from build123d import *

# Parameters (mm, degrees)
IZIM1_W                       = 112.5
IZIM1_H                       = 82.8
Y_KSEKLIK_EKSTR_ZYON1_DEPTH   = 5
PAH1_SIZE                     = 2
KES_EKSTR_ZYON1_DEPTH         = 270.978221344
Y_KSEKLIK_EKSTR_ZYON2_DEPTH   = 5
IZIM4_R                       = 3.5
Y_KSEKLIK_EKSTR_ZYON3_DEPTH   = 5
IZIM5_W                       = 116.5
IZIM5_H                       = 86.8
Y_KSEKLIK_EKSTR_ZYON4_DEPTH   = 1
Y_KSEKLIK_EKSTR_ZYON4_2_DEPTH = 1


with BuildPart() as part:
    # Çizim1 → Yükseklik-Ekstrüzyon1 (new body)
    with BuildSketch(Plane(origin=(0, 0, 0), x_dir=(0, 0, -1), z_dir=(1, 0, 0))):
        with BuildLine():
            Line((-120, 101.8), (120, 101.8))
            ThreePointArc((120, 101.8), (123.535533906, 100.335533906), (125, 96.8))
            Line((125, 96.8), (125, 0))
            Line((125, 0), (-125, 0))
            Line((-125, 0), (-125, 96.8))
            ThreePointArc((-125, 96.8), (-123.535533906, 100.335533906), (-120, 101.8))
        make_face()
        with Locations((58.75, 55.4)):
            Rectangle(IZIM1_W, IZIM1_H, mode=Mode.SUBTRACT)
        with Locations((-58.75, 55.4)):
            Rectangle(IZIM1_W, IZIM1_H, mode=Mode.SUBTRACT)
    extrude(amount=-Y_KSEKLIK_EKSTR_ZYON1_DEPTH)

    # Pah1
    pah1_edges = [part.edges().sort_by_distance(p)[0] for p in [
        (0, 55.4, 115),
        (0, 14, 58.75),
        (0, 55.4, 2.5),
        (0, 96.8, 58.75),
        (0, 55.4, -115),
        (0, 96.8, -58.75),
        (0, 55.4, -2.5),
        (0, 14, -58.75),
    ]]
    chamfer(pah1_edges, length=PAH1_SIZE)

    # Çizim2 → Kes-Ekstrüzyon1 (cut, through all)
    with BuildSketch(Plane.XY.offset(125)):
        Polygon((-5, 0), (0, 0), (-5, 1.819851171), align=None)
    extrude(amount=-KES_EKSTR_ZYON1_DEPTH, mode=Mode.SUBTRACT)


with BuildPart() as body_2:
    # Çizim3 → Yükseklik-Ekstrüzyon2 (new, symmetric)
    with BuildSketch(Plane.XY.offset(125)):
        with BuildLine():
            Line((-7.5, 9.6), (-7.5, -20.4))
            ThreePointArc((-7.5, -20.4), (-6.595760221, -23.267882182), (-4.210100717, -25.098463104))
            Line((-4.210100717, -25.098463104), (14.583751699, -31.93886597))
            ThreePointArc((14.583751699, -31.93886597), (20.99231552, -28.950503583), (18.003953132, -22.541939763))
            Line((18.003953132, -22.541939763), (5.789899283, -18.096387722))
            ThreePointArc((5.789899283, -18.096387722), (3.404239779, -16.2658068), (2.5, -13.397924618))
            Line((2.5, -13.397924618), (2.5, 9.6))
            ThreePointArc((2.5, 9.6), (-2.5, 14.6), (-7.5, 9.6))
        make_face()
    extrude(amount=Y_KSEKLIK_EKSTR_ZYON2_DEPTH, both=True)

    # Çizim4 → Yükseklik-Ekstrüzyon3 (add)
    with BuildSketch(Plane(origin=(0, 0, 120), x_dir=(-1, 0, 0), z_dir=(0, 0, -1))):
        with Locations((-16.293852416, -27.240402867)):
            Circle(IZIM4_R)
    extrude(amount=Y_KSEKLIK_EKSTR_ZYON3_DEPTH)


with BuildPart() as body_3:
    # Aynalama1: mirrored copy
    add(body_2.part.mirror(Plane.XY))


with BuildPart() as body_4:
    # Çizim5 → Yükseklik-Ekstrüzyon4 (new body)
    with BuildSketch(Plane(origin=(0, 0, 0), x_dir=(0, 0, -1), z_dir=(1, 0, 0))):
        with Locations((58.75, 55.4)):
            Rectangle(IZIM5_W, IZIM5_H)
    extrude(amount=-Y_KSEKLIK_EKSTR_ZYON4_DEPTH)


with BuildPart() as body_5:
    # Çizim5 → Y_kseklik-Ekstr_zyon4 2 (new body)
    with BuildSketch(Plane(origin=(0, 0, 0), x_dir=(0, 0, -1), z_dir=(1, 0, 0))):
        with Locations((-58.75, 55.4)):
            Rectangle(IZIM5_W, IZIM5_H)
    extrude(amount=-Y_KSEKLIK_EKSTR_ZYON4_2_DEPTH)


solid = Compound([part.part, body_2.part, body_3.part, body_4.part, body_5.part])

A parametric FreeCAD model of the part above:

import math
import FreeCAD as App
import Part
import Sketcher
from FreeCAD import Vector
Q = App.Units.Quantity


def edges_at(feature, points):
    """Names of the edges that pass closest to the given points."""
    edges = feature.Shape.Edges
    near = lambda p: min(range(len(edges)), key=lambda i: edges[i].distToShape(Part.Vertex(*p))[0])
    return sorted({f"Edge{near(p) + 1}" for p in points})


def add_polygon(sketch, points):
    """Adds a closed chain of lines whose ends are joined by coincident constraints."""
    first, n = sketch.GeometryCount, len(points)
    for a, b in zip(points, points[1:] + points[:1]):
        sketch.addGeometry(Part.LineSegment(App.Vector(*a, 0), App.Vector(*b, 0)), False)
    for i in range(n):
        sketch.addConstraint(Sketcher.Constraint("Coincident", first + i, 2, first + (i + 1) % n, 1))

doc = App.newDocument("Part")
body = doc.addObject("PartDesign::Body", "Body")

sketch1 = doc.addObject("Sketcher::SketchObject", "Sketch")
body.addObject(sketch1)
sketch1.AttachmentSupport = (doc.YZ_Plane, [""])
sketch1.MapMode = "FlatFace"
sketch1.addGeometry(Part.LineSegment(Vector(102, -120, 0), Vector(102, 120, 0)), False)
sketch1.addGeometry(Part.ArcOfCircle(Part.Circle(Vector(97, 120, 0), Vector(0, 0, 1), 5), math.radians(0), math.radians(90)), False)
sketch1.addGeometry(Part.LineSegment(Vector(97, 125, 0), Vector(0, 125, 0)), False)
sketch1.addGeometry(Part.LineSegment(Vector(0, 125, 0), Vector(0, -125, 0)), False)
sketch1.addGeometry(Part.LineSegment(Vector(0, -125, 0), Vector(97, -125, 0)), False)
sketch1.addGeometry(Part.ArcOfCircle(Part.Circle(Vector(97, -120, 0), Vector(0, 0, 1), 5), math.radians(-90), math.radians(0)), False)
add_polygon(sketch1, [(14, -2), (97, -2), (97, -115), (14, -115)])
add_polygon(sketch1, [(14, 115), (97, 115), (97, 2), (14, 2)])
sketch1.addConstraint(Sketcher.Constraint("Tangent", 0, 2, 1, 1))
sketch1.addConstraint(Sketcher.Constraint("Tangent", 1, 2, 2, 1))
sketch1.addConstraint(Sketcher.Constraint("Coincident", 2, 2, 3, 1))
sketch1.addConstraint(Sketcher.Constraint("Coincident", 3, 2, 4, 1))
sketch1.addConstraint(Sketcher.Constraint("Tangent", 4, 2, 5, 1))
sketch1.addConstraint(Sketcher.Constraint("Tangent", 5, 2, 0, 1))
sketch1.addConstraint(Sketcher.Constraint("Vertical", 0))
sketch1.addConstraint(Sketcher.Constraint("Horizontal", 2))
sketch1.addConstraint(Sketcher.Constraint("Vertical", 3))
sketch1.addConstraint(Sketcher.Constraint("Horizontal", 4))
sketch1.addConstraint(Sketcher.Constraint("Horizontal", 6))
sketch1.addConstraint(Sketcher.Constraint("Vertical", 7))
sketch1.addConstraint(Sketcher.Constraint("Horizontal", 8))
sketch1.addConstraint(Sketcher.Constraint("Vertical", 9))
sketch1.addConstraint(Sketcher.Constraint("Horizontal", 10))
sketch1.addConstraint(Sketcher.Constraint("Vertical", 11))
sketch1.addConstraint(Sketcher.Constraint("Horizontal", 12))
sketch1.addConstraint(Sketcher.Constraint("Vertical", 13))
sketch1.addConstraint(Sketcher.Constraint("Equal", 1, 5))
sketch1.addConstraint(Sketcher.Constraint("Symmetric", 2, 2, 3, 2, -1, 1))
sketch1.addConstraint(Sketcher.Constraint("Symmetric", 7, 2, 10, 2, -1))
sketch1.addConstraint(Sketcher.Constraint("Symmetric", 9, 2, 12, 2, -1))
sketch1.addConstraint(Sketcher.Constraint("Vertical", 4, 2, 6, 2))
sketch1.addConstraint(Sketcher.Constraint("Radius", 1, 5.0))
sketch1.addConstraint(Sketcher.Constraint("DistanceY", 0, 1, 0, 2, 240.0))
sketch1.addConstraint(Sketcher.Constraint("DistanceX", 2, 2, 2, 1, 96.8))
sketch1.addConstraint(Sketcher.Constraint("DistanceX", 6, 1, 6, 2, 82.8))
sketch1.addConstraint(Sketcher.Constraint("DistanceY", 7, 2, 7, 1, 112.5))
sketch1.addConstraint(Sketcher.Constraint("DistanceY", 7, 2, -1, 1, 115.0))
pad1 = doc.addObject("PartDesign::Pad", "Pad")
body.addObject(pad1)
pad1.Profile = sketch1
pad1.Length = 5
pad1.Reversed = True
doc.recompute()

chamfer = doc.addObject("PartDesign::Chamfer", "Chamfer")
body.addObject(chamfer)
chamfer.Base = (pad1, edges_at(pad1, [
    (0, 55.4, 115),
    (0, 14, 58.75),
    (0, 55.4, 2.5),
    (0, 96.8, 58.75),
    (0, 55.4, -115),
    (0, 96.8, -58.75),
    (0, 55.4, -2.5),
    (0, 14, -58.75),
]))
chamfer.Size = 2

sketch2 = doc.addObject("Sketcher::SketchObject", "Sketch001")
body.addObject(sketch2)
sketch2.AttachmentSupport = (doc.XY_Plane, [""])
sketch2.MapMode = "FlatFace"
sketch2.AttachmentOffset = App.Placement(Vector(0, 0, 125), App.Rotation())
add_polygon(sketch2, [(-5, 0), (0, 0), (-5, 1.8)])
sketch2.addConstraint(Sketcher.Constraint("Horizontal", 0))
sketch2.addConstraint(Sketcher.Constraint("Vertical", 2))
sketch2.addConstraint(Sketcher.Constraint("Coincident", 0, 2, -1, 1))
sketch2.addConstraint(Sketcher.Constraint("DistanceX", 0, 1, 0, 2, 5.0))
sketch2.addConstraint(Sketcher.Constraint("Angle", 1, Q("160 deg")))
pocket1 = doc.addObject("PartDesign::Pocket", "Pocket")
body.addObject(pocket1)
pocket1.Profile = sketch2
pocket1.Type = "ThroughAll"
body2 = doc.addObject("PartDesign::Body", "Body001")

sketch3 = doc.addObject("Sketcher::SketchObject", "Sketch002")
body2.addObject(sketch3)
sketch3.AttachmentSupport = (doc.getObject("XY_Plane001"), [""])
sketch3.MapMode = "FlatFace"
sketch3.AttachmentOffset = App.Placement(Vector(0, 0, 125), App.Rotation())
sketch3.addGeometry(Part.LineSegment(Vector(-8, 10, 0), Vector(-8, -20, 0)), False)
sketch3.addGeometry(Part.ArcOfCircle(Part.Circle(Vector(-2, -20, 0), Vector(0, 0, 1), 5), math.radians(-180), math.radians(-110)), False)
sketch3.addGeometry(Part.LineSegment(Vector(-4, -25, 0), Vector(15, -32, 0)), False)
sketch3.addGeometry(Part.ArcOfCircle(Part.Circle(Vector(16, -27, 0), Vector(0, 0, 1), 5), math.radians(-110), math.radians(70)), False)
sketch3.addGeometry(Part.LineSegment(Vector(18, -23, 0), Vector(6, -18, 0)), False)
sketch3.addGeometry(Part.ArcOfCircle(Part.Circle(Vector(8, -13, 0), Vector(0, 0, 1), 5), math.radians(-180), math.radians(-110)), False)
sketch3.addGeometry(Part.LineSegment(Vector(2, -13, 0), Vector(2, 10, 0)), False)
sketch3.addGeometry(Part.ArcOfCircle(Part.Circle(Vector(-2, 10, 0), Vector(0, 0, 1), 5), math.radians(0), math.radians(180)), False)
sketch3.addConstraint(Sketcher.Constraint("Tangent", 0, 2, 1, 1))
sketch3.addConstraint(Sketcher.Constraint("Tangent", 1, 2, 2, 1))
sketch3.addConstraint(Sketcher.Constraint("Tangent", 2, 2, 3, 1))
sketch3.addConstraint(Sketcher.Constraint("Tangent", 3, 2, 4, 1))
sketch3.addConstraint(Sketcher.Constraint("Tangent", 4, 2, 5, 2))
sketch3.addConstraint(Sketcher.Constraint("Tangent", 5, 1, 6, 1))
sketch3.addConstraint(Sketcher.Constraint("Tangent", 6, 2, 7, 1))
sketch3.addConstraint(Sketcher.Constraint("Tangent", 7, 2, 0, 1))
sketch3.addConstraint(Sketcher.Constraint("Vertical", 0))
sketch3.addConstraint(Sketcher.Constraint("Vertical", 6))
sketch3.addConstraint(Sketcher.Constraint("Equal", 1, 3))
sketch3.addConstraint(Sketcher.Constraint("Equal", 3, 5))
sketch3.addConstraint(Sketcher.Constraint("Equal", 5, 7))
sketch3.addConstraint(Sketcher.Constraint("Parallel", 2, 4))
sketch3.addConstraint(Sketcher.Constraint("Radius", 1, 5.0))
sketch3.addConstraint(Sketcher.Constraint("DistanceY", 0, 2, 0, 1, 30.0))
sketch3.addConstraint(Sketcher.Constraint("Angle", 2, Q("-20 deg")))
sketch3.addConstraint(Sketcher.Constraint("Distance", 2, 20.0))
sketch3.addConstraint(Sketcher.Constraint("DistanceX", 1, 3, -1, 1, 2.5))
sketch3.addConstraint(Sketcher.Constraint("DistanceY", 1, 3, -1, 1, 20.4))
pad2 = doc.addObject("PartDesign::Pad", "Pad001")
body2.addObject(pad2)
pad2.Profile = sketch3
pad2.Length = 10
pad2.Midplane = True

sketch4 = doc.addObject("Sketcher::SketchObject", "Sketch003")
body2.addObject(sketch4)
sketch4.AttachmentSupport = (doc.getObject("XY_Plane001"), [""])
sketch4.MapMode = "FlatFace"
sketch4.AttachmentOffset = App.Placement(Vector(0, 0, 120), App.Rotation())
sketch4.addGeometry(Part.Circle(Vector(16.3, -27.2, 0), Vector(0, 0, 1), 3.5), False)
sketch4.addConstraint(Sketcher.Constraint("Diameter", 0, 7.0))
sketch4.addConstraint(Sketcher.Constraint("DistanceX", -1, 1, 0, 3, 16.293852))
sketch4.addConstraint(Sketcher.Constraint("DistanceY", 0, 3, -1, 1, 27.240403))
pad3 = doc.addObject("PartDesign::Pad", "Pad002")
body2.addObject(pad3)
pad3.Profile = sketch4
pad3.Length = 5
pad3.Reversed = True
body3 = doc.addObject("PartDesign::Body", "Body002")
doc.recompute()

mirroring = doc.addObject("Part::Mirroring", "Mirroring")
mirroring.Source = body2
mirroring.Base = Vector(0, 0, 0)
mirroring.Normal = Vector(0, 0, 1)
body3.BaseFeature = mirroring
doc.recompute()
body4 = doc.addObject("PartDesign::Body", "Body003")

sketch5 = doc.addObject("Sketcher::SketchObject", "Sketch004")
body4.addObject(sketch5)
sketch5.AttachmentSupport = (doc.getObject("YZ_Plane003"), [""])
sketch5.MapMode = "FlatFace"
add_polygon(sketch5, [(99, 0), (12, 0), (12, -117), (99, -117)])
sketch5.addConstraint(Sketcher.Constraint("Horizontal", 0))
sketch5.addConstraint(Sketcher.Constraint("Vertical", 1))
sketch5.addConstraint(Sketcher.Constraint("Horizontal", 2))
sketch5.addConstraint(Sketcher.Constraint("Vertical", 3))
sketch5.addConstraint(Sketcher.Constraint("DistanceX", 0, 2, 0, 1, 86.8))
sketch5.addConstraint(Sketcher.Constraint("DistanceY", 1, 2, 1, 1, 116.5))
sketch5.addConstraint(Sketcher.Constraint("DistanceX", -1, 1, 0, 2, 12.0))
sketch5.addConstraint(Sketcher.Constraint("DistanceY", 1, 2, -1, 1, 117.0))
pad4 = doc.addObject("PartDesign::Pad", "Pad003")
body4.addObject(pad4)
pad4.Profile = sketch5
pad4.Length = 1
pad4.Reversed = True
body5 = doc.addObject("PartDesign::Body", "Body004")

sketch6 = doc.addObject("Sketcher::SketchObject", "Sketch005")
body5.addObject(sketch6)
sketch6.AttachmentSupport = (doc.getObject("YZ_Plane004"), [""])
sketch6.MapMode = "FlatFace"
add_polygon(sketch6, [(99, 117), (12, 117), (12, 0), (99, 0)])
sketch6.addConstraint(Sketcher.Constraint("Horizontal", 0))
sketch6.addConstraint(Sketcher.Constraint("Vertical", 1))
sketch6.addConstraint(Sketcher.Constraint("Horizontal", 2))
sketch6.addConstraint(Sketcher.Constraint("Vertical", 3))
sketch6.addConstraint(Sketcher.Constraint("DistanceX", 0, 2, 0, 1, 86.8))
sketch6.addConstraint(Sketcher.Constraint("DistanceY", 1, 2, 1, 1, 116.5))
sketch6.addConstraint(Sketcher.Constraint("DistanceX", -1, 1, 0, 2, 12.0))
sketch6.addConstraint(Sketcher.Constraint("DistanceY", -1, 1, 0, 2, 117.0))
pad5 = doc.addObject("PartDesign::Pad", "Pad004")
body5.addObject(pad5)
pad5.Profile = sketch6
pad5.Length = 1
pad5.Reversed = True
mirroring.Visibility = False

doc.recompute()
